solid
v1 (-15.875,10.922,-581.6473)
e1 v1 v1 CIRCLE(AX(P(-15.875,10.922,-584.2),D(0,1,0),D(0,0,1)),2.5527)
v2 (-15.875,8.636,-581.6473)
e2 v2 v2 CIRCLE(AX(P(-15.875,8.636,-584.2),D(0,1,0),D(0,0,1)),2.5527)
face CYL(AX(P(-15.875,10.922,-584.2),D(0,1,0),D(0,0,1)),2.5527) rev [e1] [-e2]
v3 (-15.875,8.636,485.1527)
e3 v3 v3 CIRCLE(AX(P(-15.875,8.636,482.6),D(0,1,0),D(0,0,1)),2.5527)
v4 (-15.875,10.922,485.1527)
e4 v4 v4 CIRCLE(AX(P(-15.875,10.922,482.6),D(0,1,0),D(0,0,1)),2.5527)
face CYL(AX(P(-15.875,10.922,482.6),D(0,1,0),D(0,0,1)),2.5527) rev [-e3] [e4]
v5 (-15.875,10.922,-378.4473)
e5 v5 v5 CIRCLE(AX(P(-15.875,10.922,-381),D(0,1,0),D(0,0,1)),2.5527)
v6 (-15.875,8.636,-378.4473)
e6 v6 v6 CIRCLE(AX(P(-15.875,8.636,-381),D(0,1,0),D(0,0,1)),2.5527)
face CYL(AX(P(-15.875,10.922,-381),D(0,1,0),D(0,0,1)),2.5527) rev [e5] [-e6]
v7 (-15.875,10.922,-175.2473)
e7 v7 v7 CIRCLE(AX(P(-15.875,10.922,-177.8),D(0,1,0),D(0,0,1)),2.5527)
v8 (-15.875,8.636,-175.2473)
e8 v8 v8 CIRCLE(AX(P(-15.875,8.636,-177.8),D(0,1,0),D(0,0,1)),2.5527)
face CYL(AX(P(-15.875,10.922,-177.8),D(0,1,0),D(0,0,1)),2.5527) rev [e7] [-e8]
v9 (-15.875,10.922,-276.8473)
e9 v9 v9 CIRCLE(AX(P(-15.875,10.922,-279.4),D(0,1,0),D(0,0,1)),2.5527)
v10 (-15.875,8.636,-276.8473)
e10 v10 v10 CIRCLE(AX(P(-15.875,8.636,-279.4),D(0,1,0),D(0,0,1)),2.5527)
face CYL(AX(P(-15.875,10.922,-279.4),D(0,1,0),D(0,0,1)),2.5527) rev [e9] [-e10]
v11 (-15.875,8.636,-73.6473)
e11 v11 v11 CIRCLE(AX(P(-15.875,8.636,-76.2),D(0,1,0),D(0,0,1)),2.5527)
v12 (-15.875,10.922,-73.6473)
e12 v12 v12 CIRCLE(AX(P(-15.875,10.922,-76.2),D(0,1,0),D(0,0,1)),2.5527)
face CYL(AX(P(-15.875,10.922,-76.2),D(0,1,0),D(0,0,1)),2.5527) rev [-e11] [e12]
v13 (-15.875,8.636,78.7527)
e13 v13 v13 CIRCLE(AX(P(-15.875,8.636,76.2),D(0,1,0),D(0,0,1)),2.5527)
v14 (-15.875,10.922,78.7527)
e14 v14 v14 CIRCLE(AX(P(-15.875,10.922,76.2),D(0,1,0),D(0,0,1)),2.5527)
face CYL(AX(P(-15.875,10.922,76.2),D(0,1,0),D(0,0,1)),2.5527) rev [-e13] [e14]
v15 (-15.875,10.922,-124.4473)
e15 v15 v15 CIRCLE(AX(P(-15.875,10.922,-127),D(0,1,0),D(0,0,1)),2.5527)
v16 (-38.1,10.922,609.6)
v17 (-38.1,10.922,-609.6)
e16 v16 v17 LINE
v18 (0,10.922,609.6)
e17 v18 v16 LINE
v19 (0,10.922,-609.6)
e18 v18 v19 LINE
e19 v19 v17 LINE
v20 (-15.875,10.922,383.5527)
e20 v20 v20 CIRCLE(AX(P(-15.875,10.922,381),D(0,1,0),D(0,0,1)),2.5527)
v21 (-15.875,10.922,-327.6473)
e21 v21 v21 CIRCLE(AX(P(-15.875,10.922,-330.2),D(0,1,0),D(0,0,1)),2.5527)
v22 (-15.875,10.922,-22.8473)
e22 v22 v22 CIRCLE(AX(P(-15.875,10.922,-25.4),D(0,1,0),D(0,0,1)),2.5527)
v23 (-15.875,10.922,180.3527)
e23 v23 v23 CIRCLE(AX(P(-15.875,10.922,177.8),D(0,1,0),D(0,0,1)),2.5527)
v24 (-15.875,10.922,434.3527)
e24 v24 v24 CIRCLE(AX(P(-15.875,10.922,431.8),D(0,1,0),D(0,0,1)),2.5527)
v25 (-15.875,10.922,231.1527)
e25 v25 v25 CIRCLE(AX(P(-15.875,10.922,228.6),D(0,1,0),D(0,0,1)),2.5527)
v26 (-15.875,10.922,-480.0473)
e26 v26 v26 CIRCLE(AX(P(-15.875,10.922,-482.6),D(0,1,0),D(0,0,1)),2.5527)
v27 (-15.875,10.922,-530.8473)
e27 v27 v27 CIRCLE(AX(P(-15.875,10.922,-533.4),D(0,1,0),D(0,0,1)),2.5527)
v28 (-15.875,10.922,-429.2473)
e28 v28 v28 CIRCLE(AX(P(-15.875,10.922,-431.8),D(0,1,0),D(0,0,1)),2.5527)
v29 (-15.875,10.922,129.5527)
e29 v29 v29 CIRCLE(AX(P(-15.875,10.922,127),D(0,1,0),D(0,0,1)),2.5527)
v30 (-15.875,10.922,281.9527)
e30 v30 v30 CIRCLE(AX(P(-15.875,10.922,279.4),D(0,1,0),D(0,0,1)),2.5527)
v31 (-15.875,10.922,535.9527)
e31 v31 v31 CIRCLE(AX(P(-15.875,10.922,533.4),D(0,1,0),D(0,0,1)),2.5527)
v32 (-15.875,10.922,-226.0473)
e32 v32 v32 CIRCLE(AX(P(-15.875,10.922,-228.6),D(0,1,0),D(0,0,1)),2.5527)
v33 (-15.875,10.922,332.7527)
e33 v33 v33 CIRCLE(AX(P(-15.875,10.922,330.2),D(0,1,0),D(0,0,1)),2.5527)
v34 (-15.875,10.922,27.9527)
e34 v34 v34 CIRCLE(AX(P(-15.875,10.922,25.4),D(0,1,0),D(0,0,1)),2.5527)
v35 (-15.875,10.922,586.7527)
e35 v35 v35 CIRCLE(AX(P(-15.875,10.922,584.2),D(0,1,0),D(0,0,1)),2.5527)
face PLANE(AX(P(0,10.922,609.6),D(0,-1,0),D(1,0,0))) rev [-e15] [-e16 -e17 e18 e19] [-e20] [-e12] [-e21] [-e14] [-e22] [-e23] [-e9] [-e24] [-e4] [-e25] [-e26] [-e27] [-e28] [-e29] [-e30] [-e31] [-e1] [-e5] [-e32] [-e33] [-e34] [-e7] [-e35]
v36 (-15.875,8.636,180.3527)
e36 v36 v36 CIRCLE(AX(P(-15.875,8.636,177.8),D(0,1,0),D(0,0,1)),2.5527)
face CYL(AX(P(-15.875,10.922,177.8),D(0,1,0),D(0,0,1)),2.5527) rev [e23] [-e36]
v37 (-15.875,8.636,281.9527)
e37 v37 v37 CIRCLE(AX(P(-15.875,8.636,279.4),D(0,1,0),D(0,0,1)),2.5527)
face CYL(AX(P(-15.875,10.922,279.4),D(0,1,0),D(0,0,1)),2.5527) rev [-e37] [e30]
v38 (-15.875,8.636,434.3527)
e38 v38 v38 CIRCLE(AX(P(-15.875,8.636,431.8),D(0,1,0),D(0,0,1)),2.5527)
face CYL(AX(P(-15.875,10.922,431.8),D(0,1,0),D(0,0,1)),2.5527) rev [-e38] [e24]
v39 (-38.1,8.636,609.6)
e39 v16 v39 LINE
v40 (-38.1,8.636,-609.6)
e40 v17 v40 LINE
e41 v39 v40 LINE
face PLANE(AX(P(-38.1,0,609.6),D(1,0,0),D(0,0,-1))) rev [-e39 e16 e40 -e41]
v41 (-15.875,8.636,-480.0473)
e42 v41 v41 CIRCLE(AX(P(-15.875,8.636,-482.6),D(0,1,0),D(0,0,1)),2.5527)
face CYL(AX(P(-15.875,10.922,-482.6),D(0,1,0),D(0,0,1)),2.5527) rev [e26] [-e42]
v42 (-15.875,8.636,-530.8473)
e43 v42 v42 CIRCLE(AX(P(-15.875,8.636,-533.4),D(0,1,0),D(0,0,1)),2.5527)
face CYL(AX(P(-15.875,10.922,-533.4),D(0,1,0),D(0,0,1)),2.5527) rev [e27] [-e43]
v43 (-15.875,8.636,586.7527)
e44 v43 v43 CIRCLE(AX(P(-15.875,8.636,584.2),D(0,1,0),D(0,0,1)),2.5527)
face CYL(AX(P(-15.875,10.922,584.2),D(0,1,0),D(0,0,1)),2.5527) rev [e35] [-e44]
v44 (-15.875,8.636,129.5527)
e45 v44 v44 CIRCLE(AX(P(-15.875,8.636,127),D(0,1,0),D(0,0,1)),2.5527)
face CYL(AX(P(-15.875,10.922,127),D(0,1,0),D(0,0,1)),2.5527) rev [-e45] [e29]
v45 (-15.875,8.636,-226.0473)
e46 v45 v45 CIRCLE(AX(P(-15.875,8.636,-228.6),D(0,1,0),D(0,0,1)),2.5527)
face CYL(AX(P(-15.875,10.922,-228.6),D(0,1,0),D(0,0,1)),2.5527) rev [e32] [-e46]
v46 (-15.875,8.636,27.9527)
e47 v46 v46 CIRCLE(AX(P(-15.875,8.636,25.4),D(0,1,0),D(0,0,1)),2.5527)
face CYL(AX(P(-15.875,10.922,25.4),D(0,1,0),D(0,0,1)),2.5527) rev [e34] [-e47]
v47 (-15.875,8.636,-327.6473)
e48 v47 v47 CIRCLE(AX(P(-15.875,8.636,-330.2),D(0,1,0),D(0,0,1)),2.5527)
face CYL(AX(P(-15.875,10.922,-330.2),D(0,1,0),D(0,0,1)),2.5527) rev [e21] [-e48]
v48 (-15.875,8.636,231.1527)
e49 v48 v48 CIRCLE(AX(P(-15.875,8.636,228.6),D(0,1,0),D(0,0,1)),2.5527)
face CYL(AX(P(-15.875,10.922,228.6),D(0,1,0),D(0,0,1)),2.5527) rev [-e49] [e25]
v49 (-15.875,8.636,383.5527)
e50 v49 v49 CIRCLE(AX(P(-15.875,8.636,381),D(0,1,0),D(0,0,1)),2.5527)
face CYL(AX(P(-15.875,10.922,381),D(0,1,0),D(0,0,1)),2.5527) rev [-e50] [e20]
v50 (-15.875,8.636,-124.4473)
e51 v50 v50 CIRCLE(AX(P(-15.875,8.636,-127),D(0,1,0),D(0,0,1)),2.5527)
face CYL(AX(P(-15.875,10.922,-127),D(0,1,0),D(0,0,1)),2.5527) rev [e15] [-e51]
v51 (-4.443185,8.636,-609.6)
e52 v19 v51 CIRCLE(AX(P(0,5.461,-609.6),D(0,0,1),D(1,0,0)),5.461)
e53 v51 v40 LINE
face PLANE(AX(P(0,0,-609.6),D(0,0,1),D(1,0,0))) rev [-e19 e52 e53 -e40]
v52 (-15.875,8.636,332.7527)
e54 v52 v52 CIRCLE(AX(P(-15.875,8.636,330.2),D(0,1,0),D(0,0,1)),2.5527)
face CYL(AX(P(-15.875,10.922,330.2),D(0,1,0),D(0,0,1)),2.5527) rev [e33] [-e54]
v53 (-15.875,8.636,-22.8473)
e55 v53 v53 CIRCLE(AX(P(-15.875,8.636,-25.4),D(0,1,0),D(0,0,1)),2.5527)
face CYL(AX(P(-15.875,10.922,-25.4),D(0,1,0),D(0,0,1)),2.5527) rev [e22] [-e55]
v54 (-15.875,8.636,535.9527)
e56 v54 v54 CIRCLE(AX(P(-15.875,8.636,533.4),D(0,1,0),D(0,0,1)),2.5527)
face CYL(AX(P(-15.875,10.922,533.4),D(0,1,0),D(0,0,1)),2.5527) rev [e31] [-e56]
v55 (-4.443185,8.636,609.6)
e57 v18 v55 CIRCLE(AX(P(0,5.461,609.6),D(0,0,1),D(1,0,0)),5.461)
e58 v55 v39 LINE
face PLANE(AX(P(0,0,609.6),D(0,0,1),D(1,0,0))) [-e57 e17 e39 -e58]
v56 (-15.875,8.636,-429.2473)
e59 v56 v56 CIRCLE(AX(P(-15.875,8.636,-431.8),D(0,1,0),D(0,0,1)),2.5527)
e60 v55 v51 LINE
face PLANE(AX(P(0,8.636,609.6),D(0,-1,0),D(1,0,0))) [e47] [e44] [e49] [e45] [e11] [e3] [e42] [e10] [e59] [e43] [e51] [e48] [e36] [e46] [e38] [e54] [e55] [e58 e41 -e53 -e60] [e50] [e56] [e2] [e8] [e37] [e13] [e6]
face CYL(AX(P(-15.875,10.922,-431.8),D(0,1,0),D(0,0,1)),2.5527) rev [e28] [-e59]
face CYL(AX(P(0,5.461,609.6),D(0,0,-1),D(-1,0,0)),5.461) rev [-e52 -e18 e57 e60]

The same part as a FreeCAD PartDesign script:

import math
import FreeCAD as App
import Part
import Sketcher

V = App.Vector
Q = App.Units.Quantity

doc = App.newDocument("Part")
body = doc.addObject("PartDesign::Body", "Body")

# Sketch on XY plane
sketch1 = body.newObject("Sketcher::SketchObject", "Sketch")
sketch1.AttachmentSupport = (doc.getObject("XY_Plane"), [""])
sketch1.MapMode = "FlatFace"
sketch1.addGeometry(Part.ArcOfCircle(Part.Circle(V(0, 5.5, 0), V(0, 0, 1), 5.5), math.radians(90), math.radians(144)), False)
sketch1.addGeometry(Part.LineSegment(V(0, 10.9, 0), V(-38.1, 10.9, 0)), False)
sketch1.addGeometry(Part.LineSegment(V(-38.1, 10.9, 0), V(-38.1, 8.6, 0)), False)
sketch1.addGeometry(Part.LineSegment(V(-38.1, 8.6, 0), V(-4.4, 8.6, 0)), False)
sketch1.addConstraint(Sketcher.Constraint("Tangent", 0, 1, 1, 1))
sketch1.addConstraint(Sketcher.Constraint("Coincident", 1, 2, 2, 1))
sketch1.addConstraint(Sketcher.Constraint("Coincident", 2, 2, 3, 1))
sketch1.addConstraint(Sketcher.Constraint("Coincident", 3, 2, 0, 2))
sketch1.addConstraint(Sketcher.Constraint("Horizontal", 1))
sketch1.addConstraint(Sketcher.Constraint("Vertical", 2))
sketch1.addConstraint(Sketcher.Constraint("Horizontal", 3))
sketch1.addConstraint(Sketcher.Constraint("PointOnObject", 0, 3, -2))
sketch1.addConstraint(Sketcher.Constraint("DistanceX", 1, 2, 1, 1, Q("1.5 in")))
sketch1.addConstraint(Sketcher.Constraint("Radius", 0, Q("0.215 in")))
sketch1.addConstraint(Sketcher.Constraint("DistanceY", 2, 2, 2, 1, Q("0.09 in")))
sketch1.addConstraint(Sketcher.Constraint("DistanceY", -1, 1, 0, 1, Q("0.43 in")))
pad1 = body.newObject("PartDesign::Pad", "Pad")
pad1.Profile = sketch1
pad1.Length = Q("48 in")
pad1.Midplane = True

# Sketch on XZ plane
sketch2 = body.newObject("Sketcher::SketchObject", "Sketch001")
sketch2.AttachmentSupport = (doc.getObject("XZ_Plane"), [""])
sketch2.MapMode = "FlatFace"
sketch2.AttachmentOffset = App.Placement(V(0, 0, -0.43 * 25.4), App.Rotation())
sketch2.addGeometry(Part.Circle(V(-15.9, 584.2, 0), V(0, 0, 1), 2.6), False)
sketch2.addConstraint(Sketcher.Constraint("Diameter", 0, Q("0.201 in")))
sketch2.addConstraint(Sketcher.Constraint("DistanceY", -1, 1, 0, 3, Q("23 in")))
sketch2.addConstraint(Sketcher.Constraint("DistanceX", 0, 3, -1, 1, Q("0.625 in")))
doc.recompute()
hole = body.newObject("PartDesign::Hole", "Hole")
hole.Profile = sketch2
hole.ThreadType = "None"
hole.Diameter = Q("0.201 in")
hole.DepthType = "ThroughAll"
hole.Reversed = True
doc.recompute()

linearpattern = body.newObject("PartDesign::LinearPattern", "LinearPattern")
linearpattern.Originals = [hole]
linearpattern.Direction = (doc.getObject("Z_Axis"), [""])
linearpattern.Mode = "offset"
linearpattern.Offset = Q("2 in")
linearpattern.Occurrences = 24
linearpattern.Reversed = True
body.Tip = linearpattern

doc.recompute()
